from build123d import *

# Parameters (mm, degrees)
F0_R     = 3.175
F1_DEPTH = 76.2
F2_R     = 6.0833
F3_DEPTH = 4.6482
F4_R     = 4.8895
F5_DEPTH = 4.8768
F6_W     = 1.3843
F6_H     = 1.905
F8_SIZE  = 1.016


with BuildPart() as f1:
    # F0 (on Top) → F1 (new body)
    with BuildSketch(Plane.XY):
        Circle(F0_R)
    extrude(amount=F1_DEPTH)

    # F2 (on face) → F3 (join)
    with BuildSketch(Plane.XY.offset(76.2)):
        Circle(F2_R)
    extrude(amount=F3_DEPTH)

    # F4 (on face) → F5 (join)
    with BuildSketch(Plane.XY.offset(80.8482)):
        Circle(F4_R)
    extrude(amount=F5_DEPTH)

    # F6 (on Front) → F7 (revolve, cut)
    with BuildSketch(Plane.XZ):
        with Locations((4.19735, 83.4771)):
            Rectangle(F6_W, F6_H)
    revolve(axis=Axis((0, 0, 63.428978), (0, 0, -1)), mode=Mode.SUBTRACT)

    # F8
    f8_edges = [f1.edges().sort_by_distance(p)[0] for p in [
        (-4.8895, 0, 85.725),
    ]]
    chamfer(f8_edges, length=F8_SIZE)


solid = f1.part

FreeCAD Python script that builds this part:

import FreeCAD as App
import Part
import Sketcher
Q = App.Units.Quantity


def edges_at(feature, points):
    """Names of the edges that pass closest to the given points."""
    edges = feature.Shape.Edges
    near = lambda p: min(range(len(edges)), key=lambda i: edges[i].distToShape(Part.Vertex(*p))[0])
    return sorted({f"Edge{near(p) + 1}" for p in points})

doc = App.newDocument("Part")
body = doc.addObject("PartDesign::Body", "Body")

sketch1 = body.newObject("Sketcher::SketchObject", "Sketch")
sketch1.AttachmentSupport = (doc.getObject("XY_Plane"), [""])
sketch1.MapMode = "FlatFace"
sketch1.addGeometry(Part.Circle(App.Vector(0, 0, 0), App.Vector(0, 0, 1), 3.2), False)
sketch1.addConstraint(Sketcher.Constraint("Coincident", 0, 3, -1, 1))
sketch1.addConstraint(Sketcher.Constraint("Diameter", 0, Q("0.25 in")))
pad1 = body.newObject("PartDesign::Pad", "Pad")
pad1.Profile = sketch1
pad1.Length = Q("3 in")

sketch2 = body.newObject("Sketcher::SketchObject", "Sketch001")
sketch2.AttachmentSupport = (doc.getObject("XY_Plane"), [""])
sketch2.MapMode = "FlatFace"
sketch2.AttachmentOffset = App.Placement(App.Vector(0, 0, 3 * 25.4), App.Rotation())
sketch2.addGeometry(Part.Circle(App.Vector(0, 0, 0), App.Vector(0, 0, 1), 6), False)
sketch2.addConstraint(Sketcher.Constraint("Coincident", 0, 3, -1, 1))
sketch2.addConstraint(Sketcher.Constraint("Diameter", 0, Q("0.479 in")))
pad2 = body.newObject("PartDesign::Pad", "Pad001")
pad2.Profile = sketch2
pad2.Length = Q("0.183 in")

sketch3 = body.newObject("Sketcher::SketchObject", "Sketch002")
sketch3.AttachmentSupport = (doc.getObject("XY_Plane"), [""])
sketch3.MapMode = "FlatFace"
sketch3.AttachmentOffset = App.Placement(App.Vector(0, 0, 3.183 * 25.4), App.Rotation())
sketch3.addGeometry(Part.Circle(App.Vector(0, 0, 0), App.Vector(0, 0, 1), 4.9), False)
sketch3.addConstraint(Sketcher.Constraint("Coincident", 0, 3, -1, 1))
sketch3.addConstraint(Sketcher.Constraint("Diameter", 0, Q("0.385 in")))
pad3 = body.newObject("PartDesign::Pad", "Pad002")
pad3.Profile = sketch3
pad3.Length = Q("0.192 in")

sketch4 = body.newObject("Sketcher::SketchObject", "Sketch003")
sketch4.AttachmentSupport = (doc.getObject("XZ_Plane"), [""])
sketch4.MapMode = "FlatFace"
sketch4.addGeometry(Part.LineSegment(App.Vector(3.5, 84.4, 0), App.Vector(3.5, 82.5, 0)), False)
sketch4.addGeometry(Part.LineSegment(App.Vector(3.5, 82.5, 0), App.Vector(4.9, 82.5, 0)), False)
sketch4.addGeometry(Part.LineSegment(App.Vector(4.9, 82.5, 0), App.Vector(4.9, 84.4, 0)), False)
sketch4.addGeometry(Part.LineSegment(App.Vector(4.9, 84.4, 0), App.Vector(3.5, 84.4, 0)), False)
sketch4.addConstraint(Sketcher.Constraint("Coincident", 0, 2, 1, 1))
sketch4.addConstraint(Sketcher.Constraint("Coincident", 1, 2, 2, 1))
sketch4.addConstraint(Sketcher.Constraint("Coincident", 2, 2, 3, 1))
sketch4.addConstraint(Sketcher.Constraint("Coincident", 3, 2, 0, 1))
sketch4.addConstraint(Sketcher.Constraint("Vertical", 0))
sketch4.addConstraint(Sketcher.Constraint("Horizontal", 1))
sketch4.addConstraint(Sketcher.Constraint("Vertical", 2))
sketch4.addConstraint(Sketcher.Constraint("Horizontal", 3))
sketch4.addConstraint(Sketcher.Constraint("DistanceY", 0, 2, 0, 1, Q("0.075 in")))
sketch4.addConstraint(Sketcher.Constraint("DistanceX", 1, 1, 1, 2, Q("0.0545 in")))
sketch4.addConstraint(Sketcher.Constraint("DistanceX", -1, 1, 0, 2, Q("0.138 in")))
sketch4.addConstraint(Sketcher.Constraint("DistanceY", -1, 1, 0, 2, Q("3.249 in")))
groove = body.newObject("PartDesign::Groove", "Groove")
groove.Profile = sketch4
groove.ReferenceAxis = (sketch4, ["V_Axis"])
groove.Angle = 360
doc.recompute()

chamfer = body.newObject("PartDesign::Chamfer", "Chamfer")
chamfer.Base = (groove, edges_at(groove, [(-4.889, 0, 85.725)]))
chamfer.Size = Q("0.04 in")

doc.recompute()
